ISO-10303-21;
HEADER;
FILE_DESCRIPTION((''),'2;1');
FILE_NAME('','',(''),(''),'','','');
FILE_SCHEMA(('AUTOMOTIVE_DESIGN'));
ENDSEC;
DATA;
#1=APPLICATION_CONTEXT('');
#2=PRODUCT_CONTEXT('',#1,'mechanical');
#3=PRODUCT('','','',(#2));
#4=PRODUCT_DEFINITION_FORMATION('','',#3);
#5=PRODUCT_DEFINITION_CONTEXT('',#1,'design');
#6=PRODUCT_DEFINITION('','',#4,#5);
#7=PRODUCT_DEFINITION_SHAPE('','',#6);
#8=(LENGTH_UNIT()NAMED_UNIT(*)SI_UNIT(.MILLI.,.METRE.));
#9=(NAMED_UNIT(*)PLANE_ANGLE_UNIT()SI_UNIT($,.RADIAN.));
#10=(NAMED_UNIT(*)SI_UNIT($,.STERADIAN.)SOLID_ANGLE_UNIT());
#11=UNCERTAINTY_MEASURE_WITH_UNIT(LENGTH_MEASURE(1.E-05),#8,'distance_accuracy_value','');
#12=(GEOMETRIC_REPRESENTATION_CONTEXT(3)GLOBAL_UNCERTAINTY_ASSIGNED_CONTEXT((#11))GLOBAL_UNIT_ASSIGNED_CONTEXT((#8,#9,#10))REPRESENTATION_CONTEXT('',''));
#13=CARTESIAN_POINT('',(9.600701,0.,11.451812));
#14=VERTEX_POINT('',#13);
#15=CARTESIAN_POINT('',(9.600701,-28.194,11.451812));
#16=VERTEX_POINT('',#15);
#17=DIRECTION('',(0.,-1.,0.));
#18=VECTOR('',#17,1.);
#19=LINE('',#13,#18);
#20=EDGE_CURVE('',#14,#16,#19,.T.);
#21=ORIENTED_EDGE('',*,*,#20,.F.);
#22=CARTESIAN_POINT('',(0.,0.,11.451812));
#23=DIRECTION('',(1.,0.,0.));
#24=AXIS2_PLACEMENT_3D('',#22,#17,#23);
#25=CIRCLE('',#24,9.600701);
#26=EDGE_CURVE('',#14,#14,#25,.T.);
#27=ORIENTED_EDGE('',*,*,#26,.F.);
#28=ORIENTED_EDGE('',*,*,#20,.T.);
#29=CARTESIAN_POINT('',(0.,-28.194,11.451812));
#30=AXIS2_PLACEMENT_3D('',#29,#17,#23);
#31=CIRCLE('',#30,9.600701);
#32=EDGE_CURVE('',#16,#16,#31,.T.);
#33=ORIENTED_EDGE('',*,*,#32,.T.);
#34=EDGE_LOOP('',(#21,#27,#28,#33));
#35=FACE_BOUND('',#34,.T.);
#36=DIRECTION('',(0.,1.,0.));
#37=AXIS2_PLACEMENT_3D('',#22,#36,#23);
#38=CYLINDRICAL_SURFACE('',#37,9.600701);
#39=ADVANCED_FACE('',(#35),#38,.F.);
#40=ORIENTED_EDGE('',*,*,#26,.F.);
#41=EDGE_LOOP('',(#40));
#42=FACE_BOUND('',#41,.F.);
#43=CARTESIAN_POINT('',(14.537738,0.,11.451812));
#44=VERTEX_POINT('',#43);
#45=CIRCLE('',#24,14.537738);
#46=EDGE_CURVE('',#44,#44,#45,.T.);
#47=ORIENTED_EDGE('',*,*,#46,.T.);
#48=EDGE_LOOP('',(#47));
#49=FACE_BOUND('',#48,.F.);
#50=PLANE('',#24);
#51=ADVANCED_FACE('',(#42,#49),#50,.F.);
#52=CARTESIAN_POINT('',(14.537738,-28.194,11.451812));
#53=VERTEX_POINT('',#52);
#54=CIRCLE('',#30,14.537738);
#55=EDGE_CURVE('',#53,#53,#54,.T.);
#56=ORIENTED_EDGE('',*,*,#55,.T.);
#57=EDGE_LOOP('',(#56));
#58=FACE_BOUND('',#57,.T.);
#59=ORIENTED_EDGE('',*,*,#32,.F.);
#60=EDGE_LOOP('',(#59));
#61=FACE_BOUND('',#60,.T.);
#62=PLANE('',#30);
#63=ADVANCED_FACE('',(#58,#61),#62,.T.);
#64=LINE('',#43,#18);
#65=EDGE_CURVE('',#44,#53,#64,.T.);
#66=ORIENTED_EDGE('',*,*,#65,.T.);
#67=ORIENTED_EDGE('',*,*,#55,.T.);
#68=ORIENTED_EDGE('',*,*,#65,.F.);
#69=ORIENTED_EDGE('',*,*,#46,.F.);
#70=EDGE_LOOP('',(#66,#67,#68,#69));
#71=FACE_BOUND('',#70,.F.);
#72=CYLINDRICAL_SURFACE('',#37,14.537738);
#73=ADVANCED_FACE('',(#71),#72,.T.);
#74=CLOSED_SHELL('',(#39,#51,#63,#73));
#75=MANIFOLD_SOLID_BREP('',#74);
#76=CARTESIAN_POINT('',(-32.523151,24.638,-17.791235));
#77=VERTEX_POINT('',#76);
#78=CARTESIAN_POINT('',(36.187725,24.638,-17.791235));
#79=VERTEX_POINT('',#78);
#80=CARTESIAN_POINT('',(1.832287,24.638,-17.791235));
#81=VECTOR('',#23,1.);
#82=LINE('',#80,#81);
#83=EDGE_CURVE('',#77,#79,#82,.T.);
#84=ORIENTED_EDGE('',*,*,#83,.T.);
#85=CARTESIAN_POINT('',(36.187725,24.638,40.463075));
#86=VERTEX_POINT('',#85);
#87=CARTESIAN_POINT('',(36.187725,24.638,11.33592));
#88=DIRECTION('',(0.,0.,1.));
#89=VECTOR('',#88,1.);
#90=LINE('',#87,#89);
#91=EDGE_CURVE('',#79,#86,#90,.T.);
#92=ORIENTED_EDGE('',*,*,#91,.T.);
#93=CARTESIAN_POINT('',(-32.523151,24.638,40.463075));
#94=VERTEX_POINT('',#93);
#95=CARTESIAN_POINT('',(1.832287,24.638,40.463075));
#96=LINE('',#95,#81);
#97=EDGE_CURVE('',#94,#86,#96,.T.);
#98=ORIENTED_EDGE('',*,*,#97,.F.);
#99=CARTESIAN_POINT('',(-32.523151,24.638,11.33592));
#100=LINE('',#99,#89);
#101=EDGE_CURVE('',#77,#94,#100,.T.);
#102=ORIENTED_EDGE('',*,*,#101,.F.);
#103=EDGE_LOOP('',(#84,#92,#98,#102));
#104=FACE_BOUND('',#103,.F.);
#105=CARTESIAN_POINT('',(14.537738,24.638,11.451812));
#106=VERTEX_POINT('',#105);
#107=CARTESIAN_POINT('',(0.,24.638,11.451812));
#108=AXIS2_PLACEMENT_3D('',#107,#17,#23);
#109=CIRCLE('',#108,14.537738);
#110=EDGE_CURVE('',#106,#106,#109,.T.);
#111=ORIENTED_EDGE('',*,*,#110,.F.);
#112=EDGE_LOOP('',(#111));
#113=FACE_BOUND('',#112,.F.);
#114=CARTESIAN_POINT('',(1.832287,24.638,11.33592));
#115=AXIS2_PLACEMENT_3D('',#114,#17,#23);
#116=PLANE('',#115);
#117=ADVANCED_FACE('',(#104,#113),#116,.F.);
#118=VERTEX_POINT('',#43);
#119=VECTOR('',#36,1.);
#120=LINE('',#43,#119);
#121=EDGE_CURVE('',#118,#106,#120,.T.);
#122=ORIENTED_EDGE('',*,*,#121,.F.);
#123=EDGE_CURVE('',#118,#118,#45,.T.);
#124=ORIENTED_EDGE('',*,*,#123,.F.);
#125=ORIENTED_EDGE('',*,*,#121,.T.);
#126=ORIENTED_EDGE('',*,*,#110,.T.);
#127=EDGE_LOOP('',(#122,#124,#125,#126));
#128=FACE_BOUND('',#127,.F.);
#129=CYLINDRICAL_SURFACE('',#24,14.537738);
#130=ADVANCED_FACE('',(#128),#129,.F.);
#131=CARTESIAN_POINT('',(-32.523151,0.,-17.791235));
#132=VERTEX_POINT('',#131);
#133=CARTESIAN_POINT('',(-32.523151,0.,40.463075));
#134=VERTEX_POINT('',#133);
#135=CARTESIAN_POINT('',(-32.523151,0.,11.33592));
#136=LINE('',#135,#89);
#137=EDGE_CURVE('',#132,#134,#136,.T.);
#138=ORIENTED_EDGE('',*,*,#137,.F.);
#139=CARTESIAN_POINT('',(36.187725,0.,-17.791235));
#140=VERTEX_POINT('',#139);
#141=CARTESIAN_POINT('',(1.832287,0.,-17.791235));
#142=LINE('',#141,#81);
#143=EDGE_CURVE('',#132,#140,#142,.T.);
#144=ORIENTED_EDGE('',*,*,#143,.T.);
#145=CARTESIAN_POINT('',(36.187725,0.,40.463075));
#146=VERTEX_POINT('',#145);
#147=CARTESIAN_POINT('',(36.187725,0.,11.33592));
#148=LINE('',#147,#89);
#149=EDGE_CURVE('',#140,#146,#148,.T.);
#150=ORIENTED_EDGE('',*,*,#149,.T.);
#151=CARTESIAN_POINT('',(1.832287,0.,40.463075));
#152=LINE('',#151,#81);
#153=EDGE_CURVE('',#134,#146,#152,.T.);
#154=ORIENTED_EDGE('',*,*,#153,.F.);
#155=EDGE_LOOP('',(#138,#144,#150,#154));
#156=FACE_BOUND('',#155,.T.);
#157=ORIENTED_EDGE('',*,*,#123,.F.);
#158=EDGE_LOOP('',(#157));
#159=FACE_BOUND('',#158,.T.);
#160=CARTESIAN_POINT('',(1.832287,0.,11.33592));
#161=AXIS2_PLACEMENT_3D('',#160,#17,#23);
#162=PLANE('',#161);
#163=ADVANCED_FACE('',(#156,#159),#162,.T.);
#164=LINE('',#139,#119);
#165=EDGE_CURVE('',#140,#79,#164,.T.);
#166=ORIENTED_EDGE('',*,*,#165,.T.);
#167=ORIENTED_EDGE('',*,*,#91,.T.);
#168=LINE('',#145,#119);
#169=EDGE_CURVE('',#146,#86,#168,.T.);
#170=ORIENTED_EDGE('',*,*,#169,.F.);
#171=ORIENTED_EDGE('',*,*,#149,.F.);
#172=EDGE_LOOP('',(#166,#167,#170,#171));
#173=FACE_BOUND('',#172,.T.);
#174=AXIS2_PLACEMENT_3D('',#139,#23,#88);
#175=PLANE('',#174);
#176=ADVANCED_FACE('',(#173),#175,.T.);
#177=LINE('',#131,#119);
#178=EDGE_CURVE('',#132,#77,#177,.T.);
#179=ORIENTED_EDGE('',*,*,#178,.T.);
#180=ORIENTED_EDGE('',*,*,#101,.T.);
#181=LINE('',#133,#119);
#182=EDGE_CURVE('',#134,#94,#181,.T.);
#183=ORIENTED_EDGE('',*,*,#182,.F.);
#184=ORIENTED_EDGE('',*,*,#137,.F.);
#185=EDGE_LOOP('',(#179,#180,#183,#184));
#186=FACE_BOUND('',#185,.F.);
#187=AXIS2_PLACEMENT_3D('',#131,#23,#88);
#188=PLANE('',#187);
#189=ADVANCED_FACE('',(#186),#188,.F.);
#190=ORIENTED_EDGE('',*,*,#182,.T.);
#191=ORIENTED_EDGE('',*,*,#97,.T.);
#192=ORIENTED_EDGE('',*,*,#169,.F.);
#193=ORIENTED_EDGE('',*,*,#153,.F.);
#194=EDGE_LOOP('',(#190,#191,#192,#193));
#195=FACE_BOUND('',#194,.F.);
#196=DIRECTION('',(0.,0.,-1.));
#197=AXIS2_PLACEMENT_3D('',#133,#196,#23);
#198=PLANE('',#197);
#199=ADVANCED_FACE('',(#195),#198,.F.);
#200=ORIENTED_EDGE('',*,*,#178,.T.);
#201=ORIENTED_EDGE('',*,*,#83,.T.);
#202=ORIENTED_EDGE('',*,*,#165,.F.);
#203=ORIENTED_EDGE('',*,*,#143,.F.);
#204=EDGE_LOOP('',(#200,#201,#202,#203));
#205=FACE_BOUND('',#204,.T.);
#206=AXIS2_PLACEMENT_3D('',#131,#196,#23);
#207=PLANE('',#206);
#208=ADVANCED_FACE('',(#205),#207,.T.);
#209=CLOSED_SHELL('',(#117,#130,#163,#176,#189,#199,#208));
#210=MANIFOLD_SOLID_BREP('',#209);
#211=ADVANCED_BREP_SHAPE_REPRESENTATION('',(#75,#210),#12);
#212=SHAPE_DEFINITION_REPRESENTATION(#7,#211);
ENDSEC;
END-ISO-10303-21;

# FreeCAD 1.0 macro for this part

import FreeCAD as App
import Part
import Sketcher
Q = App.Units.Quantity

doc = App.newDocument("Part")
body = doc.addObject("PartDesign::Body", "Body")

sketch1 = doc.addObject("Sketcher::SketchObject", "Sketch")
body.addObject(sketch1)
sketch1.AttachmentSupport = (doc.XZ_Plane, [""])
sketch1.MapMode = "FlatFace"
sketch1.addGeometry([
    Part.LineSegment(App.Vector(-33, 40, 0), App.Vector(-33, -18, 0)),
    Part.LineSegment(App.Vector(-33, -18, 0), App.Vector(36, -18, 0)),
    Part.LineSegment(App.Vector(36, -18, 0), App.Vector(36, 40, 0)),
    Part.LineSegment(App.Vector(36, 40, 0), App.Vector(-33, 40, 0)),
    Part.Circle(App.Vector(0, 11, 0), App.Vector(0, 0, 1), 15),
], False)
sketch1.addConstraint([
    Sketcher.Constraint("Coincident", 0, 2, 1, 1),
    Sketcher.Constraint("Coincident", 1, 2, 2, 1),
    Sketcher.Constraint("Coincident", 2, 2, 3, 1),
    Sketcher.Constraint("Coincident", 3, 2, 0, 1),
    Sketcher.Constraint("Vertical", 0),
    Sketcher.Constraint("Horizontal", 1),
    Sketcher.Constraint("Vertical", 2),
    Sketcher.Constraint("Horizontal", 3),
    Sketcher.Constraint("PointOnObject", 4, 3, -2),
    Sketcher.Constraint("Diameter", 4, 29.075476),
    Sketcher.Constraint("DistanceY", 0, 2, 0, 1, 58.25431),
    Sketcher.Constraint("DistanceX", 1, 1, 1, 2, 68.710876),
    Sketcher.Constraint("DistanceX", 0, 2, -1, 1, 32.523151),
    Sketcher.Constraint("DistanceY", -1, 1, 4, 3, 11.451812),
    Sketcher.Constraint("DistanceY", 0, 2, -1, 1, 17.791235),
])
pad1 = doc.addObject("PartDesign::Pad", "Pad")
body.addObject(pad1)
pad1.Profile = sketch1
pad1.Length = Q("0.97 in")
pad1.Reversed = True
body2 = doc.addObject("PartDesign::Body", "Body001")

sketch2 = doc.addObject("Sketcher::SketchObject", "Sketch001")
body2.addObject(sketch2)
sketch2.AttachmentSupport = (doc.getObject("XZ_Plane001"), [""])
sketch2.MapMode = "FlatFace"
sketch2.addGeometry([
    Part.Circle(App.Vector(0, 11, 0), App.Vector(0, 0, 1), 15),
    Part.Circle(App.Vector(0, 11, 0), App.Vector(0, 0, 1), 10),
], False)
sketch2.addConstraint([
    Sketcher.Constraint("Coincident", 1, 3, 0, 3),
    Sketcher.Constraint("PointOnObject", 0, 3, -2),
    Sketcher.Constraint("Diameter", 0, 29.075476),
    Sketcher.Constraint("Diameter", 1, 19.201402),
    Sketcher.Constraint("DistanceY", -1, 1, 0, 3, 11.451812),
])
pad2 = doc.addObject("PartDesign::Pad", "Pad001")
body2.addObject(pad2)
pad2.Profile = sketch2
pad2.Length = Q("1.11 in")

doc.recompute()
